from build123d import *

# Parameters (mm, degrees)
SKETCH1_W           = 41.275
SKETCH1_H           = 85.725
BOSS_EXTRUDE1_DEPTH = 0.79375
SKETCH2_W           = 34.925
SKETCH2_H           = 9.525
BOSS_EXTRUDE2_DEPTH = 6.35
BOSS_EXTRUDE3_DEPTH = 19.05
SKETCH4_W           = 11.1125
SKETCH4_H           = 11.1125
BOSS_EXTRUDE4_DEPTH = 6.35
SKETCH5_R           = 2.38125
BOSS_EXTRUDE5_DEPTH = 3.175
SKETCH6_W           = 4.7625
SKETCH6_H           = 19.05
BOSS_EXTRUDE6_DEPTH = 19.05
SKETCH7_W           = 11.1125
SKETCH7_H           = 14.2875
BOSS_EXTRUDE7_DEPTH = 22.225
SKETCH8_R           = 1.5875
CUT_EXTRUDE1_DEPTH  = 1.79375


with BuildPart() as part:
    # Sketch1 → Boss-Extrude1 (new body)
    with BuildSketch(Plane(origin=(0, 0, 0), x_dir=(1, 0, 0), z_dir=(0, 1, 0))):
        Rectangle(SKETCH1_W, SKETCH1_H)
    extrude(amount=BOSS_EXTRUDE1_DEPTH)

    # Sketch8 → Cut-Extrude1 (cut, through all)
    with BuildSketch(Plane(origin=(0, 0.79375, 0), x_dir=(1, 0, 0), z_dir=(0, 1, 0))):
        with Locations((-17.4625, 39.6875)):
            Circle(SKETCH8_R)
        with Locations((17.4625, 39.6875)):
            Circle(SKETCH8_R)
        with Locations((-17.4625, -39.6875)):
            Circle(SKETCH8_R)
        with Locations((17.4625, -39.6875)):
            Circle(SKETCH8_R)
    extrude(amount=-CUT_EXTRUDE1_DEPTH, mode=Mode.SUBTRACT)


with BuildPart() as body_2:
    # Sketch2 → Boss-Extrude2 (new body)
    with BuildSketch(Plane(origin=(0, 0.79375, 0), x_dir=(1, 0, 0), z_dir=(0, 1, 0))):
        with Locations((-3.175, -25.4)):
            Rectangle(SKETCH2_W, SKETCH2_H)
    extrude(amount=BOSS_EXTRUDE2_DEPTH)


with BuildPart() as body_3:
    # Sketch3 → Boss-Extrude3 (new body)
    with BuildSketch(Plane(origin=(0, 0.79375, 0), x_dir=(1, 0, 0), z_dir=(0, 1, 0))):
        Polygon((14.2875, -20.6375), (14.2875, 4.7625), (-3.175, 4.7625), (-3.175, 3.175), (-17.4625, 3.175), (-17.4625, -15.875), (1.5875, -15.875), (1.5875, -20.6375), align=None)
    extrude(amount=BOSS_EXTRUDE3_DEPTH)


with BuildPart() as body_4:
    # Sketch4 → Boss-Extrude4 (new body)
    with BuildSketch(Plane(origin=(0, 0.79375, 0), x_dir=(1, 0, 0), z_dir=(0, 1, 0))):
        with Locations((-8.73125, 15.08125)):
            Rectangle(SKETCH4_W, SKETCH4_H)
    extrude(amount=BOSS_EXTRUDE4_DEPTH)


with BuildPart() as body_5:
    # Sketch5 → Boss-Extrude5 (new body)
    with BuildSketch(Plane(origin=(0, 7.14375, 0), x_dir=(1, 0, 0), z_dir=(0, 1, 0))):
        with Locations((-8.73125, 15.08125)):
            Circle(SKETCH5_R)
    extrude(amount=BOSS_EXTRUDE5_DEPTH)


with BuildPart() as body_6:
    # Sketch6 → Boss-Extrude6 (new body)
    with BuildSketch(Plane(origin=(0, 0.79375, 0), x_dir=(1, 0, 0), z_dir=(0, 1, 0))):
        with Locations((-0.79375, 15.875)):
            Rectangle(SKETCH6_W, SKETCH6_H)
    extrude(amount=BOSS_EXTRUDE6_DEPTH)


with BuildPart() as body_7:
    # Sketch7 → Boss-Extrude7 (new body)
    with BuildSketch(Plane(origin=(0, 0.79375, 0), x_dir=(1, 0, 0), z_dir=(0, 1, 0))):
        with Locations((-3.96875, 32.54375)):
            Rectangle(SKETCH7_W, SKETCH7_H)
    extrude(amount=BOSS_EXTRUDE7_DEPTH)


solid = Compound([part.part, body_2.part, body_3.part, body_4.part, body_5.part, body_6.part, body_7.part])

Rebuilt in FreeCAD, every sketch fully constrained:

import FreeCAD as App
import Part
import Sketcher
Q = App.Units.Quantity

doc = App.newDocument("Part")
params = doc.addObject("Spreadsheet::Sheet", "Params")
for row, (alias, value) in enumerate([
    ("sketch1_width", "1.625 in"),
    ("sketch1_height", "3.375 in"),
    ("pad1_length", "0.03125 in"),
    ("sketch2_diameter", "0.125 in"),
    ("sketch3_width", "1.375 in"),
    ("sketch3_height", "0.375 in"),
    ("pad2_length", "0.25 in"),
    ("sketch4_height", "1 in"),
    ("sketch4_width", "0.5 in"),
    ("sketch4_width2", "0.75 in"),
    ("sketch4_width3", "0.6875 in"),
    ("sketch4_height2", "0.0625 in"),
    ("pad3_length", "0.75 in"),
    ("sketch5_width", "0.4375 in"),
    ("pad4_length", "0.25 in"),
    ("sketch6_diameter", "0.1875 in"),
    ("pad5_length", "0.125 in"),
    ("sketch7_height", "0.75 in"),
    ("sketch7_width", "0.1875 in"),
    ("pad6_length", "0.75 in"),
    ("sketch8_width", "0.4375 in"),
    ("sketch8_height", "0.5625 in"),
    ("pad7_length", "0.875 in"),
], start=1):
    params.set(f"A{row}", alias)
    params.set(f"B{row}", "=" + value)
    params.setAlias(f"B{row}", alias)

body = doc.addObject("PartDesign::Body", "Body")

sketch1 = body.newObject("Sketcher::SketchObject", "Sketch")
sketch1.AttachmentSupport = (doc.getObject("XZ_Plane"), [""])
sketch1.MapMode = "FlatFace"
sketch1.addGeometry([
    Part.LineSegment(App.Vector(-21, -43, 0), App.Vector(-21, 43, 0)),
    Part.LineSegment(App.Vector(-21, 43, 0), App.Vector(21, 43, 0)),
    Part.LineSegment(App.Vector(21, 43, 0), App.Vector(21, -43, 0)),
    Part.LineSegment(App.Vector(21, -43, 0), App.Vector(-21, -43, 0)),
], False)
sketch1.addConstraint([
    Sketcher.Constraint("Coincident", 0, 2, 1, 1),
    Sketcher.Constraint("Coincident", 1, 2, 2, 1),
    Sketcher.Constraint("Coincident", 2, 2, 3, 1),
    Sketcher.Constraint("Coincident", 3, 2, 0, 1),
    Sketcher.Constraint("Vertical", 0),
    Sketcher.Constraint("Horizontal", 1),
    Sketcher.Constraint("Vertical", 2),
    Sketcher.Constraint("Horizontal", 3),
    Sketcher.Constraint("Symmetric", 0, 2, 2, 2, -1, 1),
    Sketcher.Constraint("DistanceX", 1, 1, 1, 2, Q("1.625 in")),
    Sketcher.Constraint("DistanceY", 0, 1, 0, 2, Q("3.375 in")),
])
sketch1.setExpression("Constraints[9]", "Params.sketch1_width")
sketch1.setExpression("Constraints[10]", "Params.sketch1_height")
pad1 = body.newObject("PartDesign::Pad", "Pad")
pad1.Profile = sketch1
pad1.setExpression("Length", "Params.pad1_length")
pad1.Reversed = True

sketch2 = body.newObject("Sketcher::SketchObject", "Sketch001")
sketch2.AttachmentSupport = (doc.getObject("XZ_Plane"), [""])
sketch2.MapMode = "FlatFace"
sketch2.AttachmentOffset = App.Placement(App.Vector(0, 0, -0.03125 * 25.4), App.Rotation())
sketch2.addGeometry([
    Part.Circle(App.Vector(-17.5, -39.7, 0), App.Vector(0, 0, 1), 1.6),
    Part.Circle(App.Vector(17.5, -39.7, 0), App.Vector(0, 0, 1), 1.6),
    Part.Circle(App.Vector(-17.5, 39.7, 0), App.Vector(0, 0, 1), 1.6),
    Part.Circle(App.Vector(17.5, 39.7, 0), App.Vector(0, 0, 1), 1.6),
], False)
sketch2.addConstraint([
    Sketcher.Constraint("Equal", 0, 1),
    Sketcher.Constraint("Equal", 1, 2),
    Sketcher.Constraint("Equal", 2, 3),
    Sketcher.Constraint("Symmetric", 1, 3, 2, 3, -1, 1),
    Sketcher.Constraint("Symmetric", 0, 3, 3, 3, -1, 1),
    Sketcher.Constraint("Symmetric", 0, 3, 1, 3, -2),
    Sketcher.Constraint("Diameter", 0, Q("0.125 in")),
    Sketcher.Constraint("DistanceX", 0, 3, -1, 1, Q("0.6875 in")),
    Sketcher.Constraint("DistanceY", 0, 3, -1, 1, Q("1.5625 in")),
])
sketch2.setExpression("Constraints[6]", "Params.sketch2_diameter")
pocket1 = body.newObject("PartDesign::Pocket", "Pocket")
pocket1.Profile = sketch2
pocket1.Type = "ThroughAll"
pocket1.Reversed = True
body2 = doc.addObject("PartDesign::Body", "Body001")

sketch3 = body2.newObject("Sketcher::SketchObject", "Sketch002")
sketch3.AttachmentSupport = (doc.getObject("XZ_Plane001"), [""])
sketch3.MapMode = "FlatFace"
sketch3.AttachmentOffset = App.Placement(App.Vector(0, 0, -0.03125 * 25.4), App.Rotation())
sketch3.addGeometry([
    Part.LineSegment(App.Vector(-21, 21, 0), App.Vector(-21, 30, 0)),
    Part.LineSegment(App.Vector(-21, 30, 0), App.Vector(14, 30, 0)),
    Part.LineSegment(App.Vector(14, 30, 0), App.Vector(14, 21, 0)),
    Part.LineSegment(App.Vector(14, 21, 0), App.Vector(-21, 21, 0)),
], False)
sketch3.addConstraint([
    Sketcher.Constraint("Coincident", 0, 2, 1, 1),
    Sketcher.Constraint("Coincident", 1, 2, 2, 1),
    Sketcher.Constraint("Coincident", 2, 2, 3, 1),
    Sketcher.Constraint("Coincident", 3, 2, 0, 1),
    Sketcher.Constraint("Vertical", 0),
    Sketcher.Constraint("Horizontal", 1),
    Sketcher.Constraint("Vertical", 2),
    Sketcher.Constraint("Horizontal", 3),
    Sketcher.Constraint("DistanceX", 1, 1, 1, 2, Q("1.375 in")),
    Sketcher.Constraint("DistanceY", 0, 1, 0, 2, Q("0.375 in")),
    Sketcher.Constraint("DistanceX", 0, 2, -1, 1, Q("0.8125 in")),
    Sketcher.Constraint("DistanceY", -1, 1, 0, 2, Q("1.1875 in")),
])
sketch3.setExpression("Constraints[8]", "Params.sketch3_width")
sketch3.setExpression("Constraints[9]", "Params.sketch3_height")
pad2 = body2.newObject("PartDesign::Pad", "Pad001")
pad2.Profile = sketch3
pad2.setExpression("Length", "Params.pad2_length")
pad2.Reversed = True
body3 = doc.addObject("PartDesign::Body", "Body002")

sketch4 = body3.newObject("Sketcher::SketchObject", "Sketch003")
sketch4.AttachmentSupport = (doc.getObject("XZ_Plane002"), [""])
sketch4.MapMode = "FlatFace"
sketch4.AttachmentOffset = App.Placement(App.Vector(0, 0, -0.03125 * 25.4), App.Rotation())
sketch4.addGeometry([
    Part.LineSegment(App.Vector(14.3, 20.6, 0), App.Vector(14.3, -4.8, 0)),
    Part.LineSegment(App.Vector(14.3, -4.8, 0), App.Vector(-3.2, -4.8, 0)),
    Part.LineSegment(App.Vector(-3.2, -4.8, 0), App.Vector(-3.2, -3.2, 0)),
    Part.LineSegment(App.Vector(-3.2, -3.2, 0), App.Vector(-17.5, -3.2, 0)),
    Part.LineSegment(App.Vector(-17.5, -3.2, 0), App.Vector(-17.5, 15.9, 0)),
    Part.LineSegment(App.Vector(-17.5, 15.9, 0), App.Vector(1.6, 15.9, 0)),
    Part.LineSegment(App.Vector(1.6, 15.9, 0), App.Vector(1.6, 20.6, 0)),
    Part.LineSegment(App.Vector(1.6, 20.6, 0), App.Vector(14.3, 20.6, 0)),
], False)
sketch4.addConstraint([
    Sketcher.Constraint("Coincident", 0, 2, 1, 1),
    Sketcher.Constraint("Coincident", 1, 2, 2, 1),
    Sketcher.Constraint("Coincident", 2, 2, 3, 1),
    Sketcher.Constraint("Coincident", 3, 2, 4, 1),
    Sketcher.Constraint("Coincident", 4, 2, 5, 1),
    Sketcher.Constraint("Coincident", 5, 2, 6, 1),
    Sketcher.Constraint("Coincident", 6, 2, 7, 1),
    Sketcher.Constraint("Coincident", 7, 2, 0, 1),
    Sketcher.Constraint("Vertical", 0),
    Sketcher.Constraint("Horizontal", 1),
    Sketcher.Constraint("Vertical", 2),
    Sketcher.Constraint("Horizontal", 3),
    Sketcher.Constraint("Vertical", 4),
    Sketcher.Constraint("Horizontal", 5),
    Sketcher.Constraint("Vertical", 6),
    Sketcher.Constraint("Horizontal", 7),
    Sketcher.Constraint("Equal", 5, 4),
    Sketcher.Constraint("DistanceY", 0, 2, 0, 1, Q("1 in")),
    Sketcher.Constraint("DistanceX", 7, 1, 7, 2, Q("0.5 in")),
    Sketcher.Constraint("DistanceX", 5, 1, 5, 2, Q("0.75 in")),
    Sketcher.Constraint("DistanceX", 1, 2, 1, 1, Q("0.6875 in")),
    Sketcher.Constraint("DistanceY", 2, 1, 2, 2, Q("0.0625 in")),
    Sketcher.Constraint("DistanceX", -1, 1, 0, 2, Q("0.5625 in")),
    Sketcher.Constraint("DistanceY", 0, 2, -1, 1, Q("0.1875 in")),
])
sketch4.setExpression("Constraints[17]", "Params.sketch4_height")
sketch4.setExpression("Constraints[18]", "Params.sketch4_width")
sketch4.setExpression("Constraints[19]", "Params.sketch4_width2")
sketch4.setExpression("Constraints[20]", "Params.sketch4_width3")
sketch4.setExpression("Constraints[21]", "Params.sketch4_height2")
pad3 = body3.newObject("PartDesign::Pad", "Pad002")
pad3.Profile = sketch4
pad3.setExpression("Length", "Params.pad3_length")
pad3.Reversed = True
body4 = doc.addObject("PartDesign::Body", "Body003")

sketch5 = body4.newObject("Sketcher::SketchObject", "Sketch004")
sketch5.AttachmentSupport = (doc.getObject("XZ_Plane003"), [""])
sketch5.MapMode = "FlatFace"
sketch5.AttachmentOffset = App.Placement(App.Vector(0, 0, -0.03125 * 25.4), App.Rotation())
sketch5.addGeometry([
    Part.LineSegment(App.Vector(-14, -21, 0), App.Vector(-14, -10, 0)),
    Part.LineSegment(App.Vector(-14, -10, 0), App.Vector(-3, -10, 0)),
    Part.LineSegment(App.Vector(-3, -10, 0), App.Vector(-3, -21, 0)),
    Part.LineSegment(App.Vector(-3, -21, 0), App.Vector(-14, -21, 0)),
], False)
sketch5.addConstraint([
    Sketcher.Constraint("Coincident", 0, 2, 1, 1),
    Sketcher.Constraint("Coincident", 1, 2, 2, 1),
    Sketcher.Constraint("Coincident", 2, 2, 3, 1),
    Sketcher.Constraint("Coincident", 3, 2, 0, 1),
    Sketcher.Constraint("Vertical", 0),
    Sketcher.Constraint("Horizontal", 1),
    Sketcher.Constraint("Vertical", 2),
    Sketcher.Constraint("Horizontal", 3),
    Sketcher.Constraint("Equal", 3, 0),
    Sketcher.Constraint("DistanceX", 1, 1, 1, 2, Q("0.4375 in")),
    Sketcher.Constraint("DistanceX", 0, 2, -1, 1, Q("0.5625 in")),
    Sketcher.Constraint("DistanceY", 0, 2, -1, 1, Q("0.375 in")),
])
sketch5.setExpression("Constraints[9]", "Params.sketch5_width")
pad4 = body4.newObject("PartDesign::Pad", "Pad003")
pad4.Profile = sketch5
pad4.setExpression("Length", "Params.pad4_length")
pad4.Reversed = True
body5 = doc.addObject("PartDesign::Body", "Body004")

sketch6 = body5.newObject("Sketcher::SketchObject", "Sketch005")
sketch6.AttachmentSupport = (doc.getObject("XZ_Plane004"), [""])
sketch6.MapMode = "FlatFace"
sketch6.AttachmentOffset = App.Placement(App.Vector(0, 0, -0.28125 * 25.4), App.Rotation())
sketch6.addGeometry(Part.Circle(App.Vector(-8.7, -15.1, 0), App.Vector(0, 0, 1), 2.4), False)
sketch6.addConstraint([
    Sketcher.Constraint("Diameter", 0, Q("0.1875 in")),
    Sketcher.Constraint("DistanceX", 0, 3, -1, 1, Q("0.34375 in")),
    Sketcher.Constraint("DistanceY", 0, 3, -1, 1, Q("0.59375 in")),
])
sketch6.setExpression("Constraints[0]", "Params.sketch6_diameter")
pad5 = body5.newObject("PartDesign::Pad", "Pad004")
pad5.Profile = sketch6
pad5.setExpression("Length", "Params.pad5_length")
pad5.Reversed = True
body6 = doc.addObject("PartDesign::Body", "Body005")

sketch7 = body6.newObject("Sketcher::SketchObject", "Sketch006")
sketch7.AttachmentSupport = (doc.getObject("XZ_Plane005"), [""])
sketch7.MapMode = "FlatFace"
sketch7.AttachmentOffset = App.Placement(App.Vector(0, 0, -0.03125 * 25.4), App.Rotation())
sketch7.addGeometry([
    Part.LineSegment(App.Vector(-3.2, -25.4, 0), App.Vector(-3.2, -6.3, 0)),
    Part.LineSegment(App.Vector(-3.2, -6.3, 0), App.Vector(1.6, -6.3, 0)),
    Part.LineSegment(App.Vector(1.6, -6.3, 0), App.Vector(1.6, -25.4, 0)),
    Part.LineSegment(App.Vector(1.6, -25.4, 0), App.Vector(-3.2, -25.4, 0)),
], False)
sketch7.addConstraint([
    Sketcher.Constraint("Coincident", 0, 2, 1, 1),
    Sketcher.Constraint("Coincident", 1, 2, 2, 1),
    Sketcher.Constraint("Coincident", 2, 2, 3, 1),
    Sketcher.Constraint("Coincident", 3, 2, 0, 1),
    Sketcher.Constraint("Vertical", 0),
    Sketcher.Constraint("Horizontal", 1),
    Sketcher.Constraint("Vertical", 2),
    Sketcher.Constraint("Horizontal", 3),
    Sketcher.Constraint("DistanceY", 2, 2, -1, 1, Q("1 in")),
    Sketcher.Constraint("DistanceY", 0, 1, 0, 2, Q("0.75 in")),
    Sketcher.Constraint("DistanceX", 1, 1, 1, 2, Q("0.1875 in")),
    Sketcher.Constraint("DistanceX", 0, 2, -1, 1, Q("0.125 in")),
])
sketch7.setExpression("Constraints[9]", "Params.sketch7_height")
sketch7.setExpression("Constraints[10]", "Params.sketch7_width")
pad6 = body6.newObject("PartDesign::Pad", "Pad005")
pad6.Profile = sketch7
pad6.setExpression("Length", "Params.pad6_length")
pad6.Reversed = True
body7 = doc.addObject("PartDesign::Body", "Body006")

sketch8 = body7.newObject("Sketcher::SketchObject", "Sketch007")
sketch8.AttachmentSupport = (doc.getObject("XZ_Plane006"), [""])
sketch8.MapMode = "FlatFace"
sketch8.AttachmentOffset = App.Placement(App.Vector(0, 0, -0.03125 * 25.4), App.Rotation())
sketch8.addGeometry([
    Part.LineSegment(App.Vector(-10, -40, 0), App.Vector(-10, -25, 0)),
    Part.LineSegment(App.Vector(-10, -25, 0), App.Vector(2, -25, 0)),
    Part.LineSegment(App.Vector(2, -25, 0), App.Vector(2, -40, 0)),
    Part.LineSegment(App.Vector(2, -40, 0), App.Vector(-10, -40, 0)),
], False)
sketch8.addConstraint([
    Sketcher.Constraint("Coincident", 0, 2, 1, 1),
    Sketcher.Constraint("Coincident", 1, 2, 2, 1),
    Sketcher.Constraint("Coincident", 2, 2, 3, 1),
    Sketcher.Constraint("Coincident", 3, 2, 0, 1),
    Sketcher.Constraint("Vertical", 0),
    Sketcher.Constraint("Horizontal", 1),
    Sketcher.Constraint("Vertical", 2),
    Sketcher.Constraint("Horizontal", 3),
    Sketcher.Constraint("DistanceY", 0, 2, -1, 1, Q("1 in")),
    Sketcher.Constraint("DistanceX", 1, 1, 1, 2, Q("0.4375 in")),
    Sketcher.Constraint("DistanceY", 0, 1, 0, 2, Q("0.5625 in")),
    Sketcher.Constraint("DistanceX", 0, 2, -1, 1, Q("0.375 in")),
])
sketch8.setExpression("Constraints[9]", "Params.sketch8_width")
sketch8.setExpression("Constraints[10]", "Params.sketch8_height")
pad7 = body7.newObject("PartDesign::Pad", "Pad006")
pad7.Profile = sketch8
pad7.setExpression("Length", "Params.pad7_length")
pad7.Reversed = True

doc.recompute()
